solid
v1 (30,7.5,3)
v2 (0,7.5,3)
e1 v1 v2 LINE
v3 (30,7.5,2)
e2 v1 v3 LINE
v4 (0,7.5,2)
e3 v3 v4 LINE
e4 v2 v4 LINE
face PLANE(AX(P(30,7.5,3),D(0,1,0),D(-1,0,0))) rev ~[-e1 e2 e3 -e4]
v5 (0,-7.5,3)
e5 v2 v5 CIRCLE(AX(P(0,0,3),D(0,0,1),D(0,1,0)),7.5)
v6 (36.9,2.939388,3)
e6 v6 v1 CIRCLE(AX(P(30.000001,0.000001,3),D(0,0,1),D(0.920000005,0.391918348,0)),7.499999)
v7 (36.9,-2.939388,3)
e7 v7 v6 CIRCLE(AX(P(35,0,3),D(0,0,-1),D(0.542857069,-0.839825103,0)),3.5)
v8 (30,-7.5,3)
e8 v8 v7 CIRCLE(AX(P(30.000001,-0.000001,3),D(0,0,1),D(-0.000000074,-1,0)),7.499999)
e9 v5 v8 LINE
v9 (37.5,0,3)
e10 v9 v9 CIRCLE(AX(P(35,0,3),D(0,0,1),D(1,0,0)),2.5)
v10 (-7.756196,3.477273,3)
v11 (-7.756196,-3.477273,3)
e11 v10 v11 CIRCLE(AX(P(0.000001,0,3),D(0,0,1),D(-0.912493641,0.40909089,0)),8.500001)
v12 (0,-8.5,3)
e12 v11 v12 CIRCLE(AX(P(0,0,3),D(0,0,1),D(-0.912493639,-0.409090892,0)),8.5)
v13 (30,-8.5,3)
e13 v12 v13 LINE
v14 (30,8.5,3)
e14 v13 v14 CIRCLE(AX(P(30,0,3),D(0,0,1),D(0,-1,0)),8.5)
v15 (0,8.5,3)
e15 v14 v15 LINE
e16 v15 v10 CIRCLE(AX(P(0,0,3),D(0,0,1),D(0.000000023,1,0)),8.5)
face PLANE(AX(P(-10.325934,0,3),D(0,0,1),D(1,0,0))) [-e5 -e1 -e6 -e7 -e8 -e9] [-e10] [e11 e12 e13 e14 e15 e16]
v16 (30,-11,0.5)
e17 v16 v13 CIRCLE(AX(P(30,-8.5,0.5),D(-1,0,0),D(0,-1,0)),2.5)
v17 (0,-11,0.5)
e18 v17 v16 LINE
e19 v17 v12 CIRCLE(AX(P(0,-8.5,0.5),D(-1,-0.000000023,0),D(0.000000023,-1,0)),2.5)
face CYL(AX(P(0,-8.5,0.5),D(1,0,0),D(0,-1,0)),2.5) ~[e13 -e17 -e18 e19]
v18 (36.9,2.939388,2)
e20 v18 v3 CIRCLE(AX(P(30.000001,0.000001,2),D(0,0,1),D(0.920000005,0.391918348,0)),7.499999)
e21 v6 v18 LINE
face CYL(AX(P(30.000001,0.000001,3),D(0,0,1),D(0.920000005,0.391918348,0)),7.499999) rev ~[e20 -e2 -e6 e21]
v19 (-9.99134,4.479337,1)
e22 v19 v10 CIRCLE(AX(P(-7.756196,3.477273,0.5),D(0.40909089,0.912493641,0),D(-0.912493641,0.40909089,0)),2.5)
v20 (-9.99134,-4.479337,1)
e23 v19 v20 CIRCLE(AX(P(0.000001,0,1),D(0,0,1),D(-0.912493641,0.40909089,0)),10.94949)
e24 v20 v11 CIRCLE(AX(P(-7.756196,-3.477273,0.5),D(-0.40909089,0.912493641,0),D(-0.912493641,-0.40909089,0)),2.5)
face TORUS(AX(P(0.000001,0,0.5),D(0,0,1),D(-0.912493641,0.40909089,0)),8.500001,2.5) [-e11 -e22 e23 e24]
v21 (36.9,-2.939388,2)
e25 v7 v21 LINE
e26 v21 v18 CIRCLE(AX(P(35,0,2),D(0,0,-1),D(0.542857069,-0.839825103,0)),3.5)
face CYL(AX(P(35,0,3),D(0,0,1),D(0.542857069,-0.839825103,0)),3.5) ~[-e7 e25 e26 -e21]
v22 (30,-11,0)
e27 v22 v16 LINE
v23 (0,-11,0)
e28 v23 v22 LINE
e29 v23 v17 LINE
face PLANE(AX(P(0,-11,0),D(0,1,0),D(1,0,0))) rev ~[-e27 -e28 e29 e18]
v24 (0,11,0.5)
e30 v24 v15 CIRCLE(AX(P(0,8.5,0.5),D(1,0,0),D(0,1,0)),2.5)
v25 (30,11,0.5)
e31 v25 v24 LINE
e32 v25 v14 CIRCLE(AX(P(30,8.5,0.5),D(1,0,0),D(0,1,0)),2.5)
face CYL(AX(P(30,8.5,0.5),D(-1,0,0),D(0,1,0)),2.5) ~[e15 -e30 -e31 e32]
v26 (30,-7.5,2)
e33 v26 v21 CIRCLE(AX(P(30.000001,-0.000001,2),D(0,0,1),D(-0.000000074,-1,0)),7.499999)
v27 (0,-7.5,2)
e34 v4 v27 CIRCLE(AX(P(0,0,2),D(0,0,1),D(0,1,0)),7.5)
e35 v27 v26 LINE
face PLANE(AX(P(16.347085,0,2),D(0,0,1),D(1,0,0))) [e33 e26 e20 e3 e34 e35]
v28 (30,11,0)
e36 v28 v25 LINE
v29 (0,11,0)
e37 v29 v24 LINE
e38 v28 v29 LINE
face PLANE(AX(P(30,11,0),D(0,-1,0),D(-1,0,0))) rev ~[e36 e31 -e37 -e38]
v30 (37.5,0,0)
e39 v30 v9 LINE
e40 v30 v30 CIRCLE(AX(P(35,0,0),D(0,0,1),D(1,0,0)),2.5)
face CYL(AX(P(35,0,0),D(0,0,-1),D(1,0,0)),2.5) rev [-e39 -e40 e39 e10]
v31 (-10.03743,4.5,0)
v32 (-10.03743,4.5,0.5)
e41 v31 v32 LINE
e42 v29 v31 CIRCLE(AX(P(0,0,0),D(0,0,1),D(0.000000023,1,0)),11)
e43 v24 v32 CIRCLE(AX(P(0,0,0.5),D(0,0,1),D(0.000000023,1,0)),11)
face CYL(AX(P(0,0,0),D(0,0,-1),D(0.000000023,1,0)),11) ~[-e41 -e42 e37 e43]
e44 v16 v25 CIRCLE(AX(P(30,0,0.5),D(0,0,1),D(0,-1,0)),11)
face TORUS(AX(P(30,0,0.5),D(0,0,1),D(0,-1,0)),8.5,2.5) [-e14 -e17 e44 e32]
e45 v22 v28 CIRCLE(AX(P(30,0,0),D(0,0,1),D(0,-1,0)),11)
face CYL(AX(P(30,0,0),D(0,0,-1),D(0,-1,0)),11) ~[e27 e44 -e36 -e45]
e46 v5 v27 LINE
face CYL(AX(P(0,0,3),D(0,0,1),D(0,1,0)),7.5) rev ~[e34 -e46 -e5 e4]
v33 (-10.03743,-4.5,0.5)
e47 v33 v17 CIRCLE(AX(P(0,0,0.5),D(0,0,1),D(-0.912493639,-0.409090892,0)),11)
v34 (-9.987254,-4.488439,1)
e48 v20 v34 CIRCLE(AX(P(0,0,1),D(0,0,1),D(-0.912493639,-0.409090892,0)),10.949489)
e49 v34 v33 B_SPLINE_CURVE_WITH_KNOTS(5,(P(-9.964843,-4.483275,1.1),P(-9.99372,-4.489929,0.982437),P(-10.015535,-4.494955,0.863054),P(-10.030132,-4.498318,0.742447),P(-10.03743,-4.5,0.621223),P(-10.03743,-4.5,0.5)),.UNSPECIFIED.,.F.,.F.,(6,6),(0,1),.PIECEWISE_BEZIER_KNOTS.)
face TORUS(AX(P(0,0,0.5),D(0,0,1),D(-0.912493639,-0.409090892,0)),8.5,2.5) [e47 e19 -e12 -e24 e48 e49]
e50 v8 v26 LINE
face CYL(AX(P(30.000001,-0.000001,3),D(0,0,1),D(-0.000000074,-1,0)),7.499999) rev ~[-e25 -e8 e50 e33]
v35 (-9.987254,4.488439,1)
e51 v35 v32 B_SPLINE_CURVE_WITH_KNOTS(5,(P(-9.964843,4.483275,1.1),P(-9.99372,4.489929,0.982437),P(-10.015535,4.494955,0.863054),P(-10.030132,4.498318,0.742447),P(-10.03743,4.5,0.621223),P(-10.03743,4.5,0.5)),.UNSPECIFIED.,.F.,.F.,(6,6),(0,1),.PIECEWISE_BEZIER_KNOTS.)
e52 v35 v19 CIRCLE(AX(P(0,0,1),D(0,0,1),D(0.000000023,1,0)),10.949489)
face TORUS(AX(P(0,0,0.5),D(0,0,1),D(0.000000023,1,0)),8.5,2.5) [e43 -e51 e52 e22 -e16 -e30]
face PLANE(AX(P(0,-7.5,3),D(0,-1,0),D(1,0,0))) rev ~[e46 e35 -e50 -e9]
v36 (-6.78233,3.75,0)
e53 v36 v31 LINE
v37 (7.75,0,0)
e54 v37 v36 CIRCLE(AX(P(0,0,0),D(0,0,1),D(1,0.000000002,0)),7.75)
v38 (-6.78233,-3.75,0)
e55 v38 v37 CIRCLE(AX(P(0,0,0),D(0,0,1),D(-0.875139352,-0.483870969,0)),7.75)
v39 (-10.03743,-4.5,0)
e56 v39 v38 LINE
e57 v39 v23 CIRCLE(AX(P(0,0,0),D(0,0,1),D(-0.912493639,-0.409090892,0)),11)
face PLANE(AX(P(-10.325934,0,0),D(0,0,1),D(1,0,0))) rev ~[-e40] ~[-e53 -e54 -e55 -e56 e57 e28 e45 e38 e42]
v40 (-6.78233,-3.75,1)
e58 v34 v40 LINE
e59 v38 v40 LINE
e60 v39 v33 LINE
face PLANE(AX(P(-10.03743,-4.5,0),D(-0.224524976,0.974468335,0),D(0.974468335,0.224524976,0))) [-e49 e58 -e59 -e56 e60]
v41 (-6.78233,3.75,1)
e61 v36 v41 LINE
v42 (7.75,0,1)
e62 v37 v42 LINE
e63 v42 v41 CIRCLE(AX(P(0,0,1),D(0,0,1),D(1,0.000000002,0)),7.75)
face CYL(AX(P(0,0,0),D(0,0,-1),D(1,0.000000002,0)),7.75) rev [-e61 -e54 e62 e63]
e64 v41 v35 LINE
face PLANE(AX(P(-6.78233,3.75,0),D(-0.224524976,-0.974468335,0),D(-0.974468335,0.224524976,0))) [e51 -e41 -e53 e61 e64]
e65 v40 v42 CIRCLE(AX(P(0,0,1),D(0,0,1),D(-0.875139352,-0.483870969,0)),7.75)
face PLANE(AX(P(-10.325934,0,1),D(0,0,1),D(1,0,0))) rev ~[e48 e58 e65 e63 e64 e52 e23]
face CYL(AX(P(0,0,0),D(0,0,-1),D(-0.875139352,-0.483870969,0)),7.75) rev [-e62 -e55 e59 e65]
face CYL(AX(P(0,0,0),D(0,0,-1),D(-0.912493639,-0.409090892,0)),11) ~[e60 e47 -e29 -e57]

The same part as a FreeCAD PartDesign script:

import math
import FreeCAD as App
import Part
import Sketcher
Q = App.Units.Quantity


def edges_at(feature, points):
    """Names of the edges that pass closest to the given points."""
    edges = feature.Shape.Edges
    near = lambda p: min(range(len(edges)), key=lambda i: edges[i].distToShape(Part.Vertex(*p))[0])
    return sorted({f"Edge{near(p) + 1}" for p in points})

doc = App.newDocument("Part")
body = doc.addObject("PartDesign::Body", "Body")

# Sketch on XY plane
sketch1 = body.newObject("Sketcher::SketchObject", "Sketch")
sketch1.AttachmentSupport = (doc.getObject("XY_Plane"), [""])
sketch1.MapMode = "FlatFace"
sketch1.addGeometry([
    Part.ArcOfCircle(Part.Circle(App.Vector(0, 0, 0), App.Vector(0, 0, 1), 11), math.radians(156), math.radians(204)),  # 0
    Part.ArcOfCircle(Part.Circle(App.Vector(0, 0, 0), App.Vector(0, 0, 1), 11), math.radians(-156), math.radians(-90)),  # 1
    Part.LineSegment(App.Vector(0, -11, 0), App.Vector(30, -11, 0)),  # 2
    Part.ArcOfCircle(Part.Circle(App.Vector(30, 0, 0), App.Vector(0, 0, 1), 11), math.radians(-90), math.radians(90)),  # 3
    Part.LineSegment(App.Vector(30, 11, 0), App.Vector(0, 11, 0)),  # 4
    Part.ArcOfCircle(Part.Circle(App.Vector(0, 0, 0), App.Vector(0, 0, 1), 11), math.radians(90), math.radians(156)),  # 5
    Part.Circle(App.Vector(35, 0, 0), App.Vector(0, 0, 1), 2.5),  # 6
], False)
sketch1.addConstraint([
    Sketcher.Constraint("Tangent", 0, 2, 1, 1),
    Sketcher.Constraint("Tangent", 1, 2, 2, 1),
    Sketcher.Constraint("Tangent", 2, 2, 3, 1),
    Sketcher.Constraint("Tangent", 3, 2, 4, 1),
    Sketcher.Constraint("Tangent", 4, 2, 5, 1),
    Sketcher.Constraint("Tangent", 5, 2, 0, 1),
    Sketcher.Constraint("Horizontal", 2),
    Sketcher.Constraint("Horizontal", 4),
    Sketcher.Constraint("Coincident", 0, 3, -1, 1),
    Sketcher.Constraint("Equal", 0, 1),
    Sketcher.Constraint("Equal", 1, 3),
    Sketcher.Constraint("PointOnObject", 6, 3, -1),
    Sketcher.Constraint("Vertical", 0, 2, 5, 2),
    Sketcher.Constraint("Diameter", 6, Q("5 mm")),
    Sketcher.Constraint("Radius", 0, Q("11.000001 mm")),
    Sketcher.Constraint("DistanceX", 2, 1, 2, 2, Q("30 mm")),
    Sketcher.Constraint("DistanceX", -1, 1, 6, 3, Q("35 mm")),
    Sketcher.Constraint("DistanceY", 0, 2, 5, 2, Q("9 mm")),
])
pad1 = body.newObject("PartDesign::Pad", "Pad")
pad1.Profile = sketch1
pad1.Length = 3
doc.recompute()

fillet = body.newObject("PartDesign::Fillet", "Fillet")
fillet.Base = (pad1, edges_at(pad1, [(-11, 0, 3)]))
fillet.Radius = 2.5

# Sketch on XY plane
sketch2 = body.newObject("Sketcher::SketchObject", "Sketch001")
sketch2.AttachmentSupport = (doc.getObject("XY_Plane"), [""])
sketch2.MapMode = "FlatFace"
sketch2.addGeometry([
    Part.ArcOfCircle(Part.Circle(App.Vector(0, 0, 0), App.Vector(0, 0, 1), 11), math.radians(156), math.radians(204)),  # 0
    Part.LineSegment(App.Vector(-10, -4.5, 0), App.Vector(-6.8, -3.8, 0)),  # 1
    Part.ArcOfCircle(Part.Circle(App.Vector(0, 0, 0), App.Vector(0, 0, 1), 7.8), math.radians(-151), math.radians(0)),  # 2
    Part.ArcOfCircle(Part.Circle(App.Vector(0, 0, 0), App.Vector(0, 0, 1), 7.8), math.radians(0), math.radians(151)),  # 3
    Part.LineSegment(App.Vector(-6.8, 3.8, 0), App.Vector(-10, 4.5, 0)),  # 4
], False)
sketch2.addConstraint([
    Sketcher.Constraint("Coincident", 0, 2, 1, 1),
    Sketcher.Constraint("Coincident", 1, 2, 2, 1),
    Sketcher.Constraint("Tangent", 2, 2, 3, 1),
    Sketcher.Constraint("Coincident", 3, 2, 4, 1),
    Sketcher.Constraint("Coincident", 4, 2, 0, 1),
    Sketcher.Constraint("Coincident", 0, 3, -1, 1),
    Sketcher.Constraint("Coincident", 2, 3, -1, 1),
    Sketcher.Constraint("Equal", 2, 3),
    Sketcher.Constraint("PointOnObject", 2, 2, -1),
    Sketcher.Constraint("Vertical", 1, 2, 3, 2),
    Sketcher.Constraint("Vertical", 0, 2, 4, 2),
    Sketcher.Constraint("Radius", 0, Q("11.000001 mm")),
    Sketcher.Constraint("Radius", 2, Q("7.75 mm")),
    Sketcher.Constraint("DistanceY", 0, 2, 4, 2, Q("9 mm")),
    Sketcher.Constraint("DistanceY", 1, 2, 3, 2, Q("7.5 mm")),
])
pocket1 = body.newObject("PartDesign::Pocket", "Pocket")
pocket1.Profile = sketch2
pocket1.Length = 1
pocket1.Reversed = True

# Sketch on XY plane
sketch3 = body.newObject("Sketcher::SketchObject", "Sketch002")
sketch3.AttachmentSupport = (doc.getObject("XY_Plane"), [""])
sketch3.MapMode = "FlatFace"
sketch3.AttachmentOffset = App.Placement(App.Vector(0, 0, 3), App.Rotation())
sketch3.addGeometry([
    Part.ArcOfCircle(Part.Circle(App.Vector(35, 0, 0), App.Vector(0, 0, 1), 3.5), math.radians(57), math.radians(303)),  # 0
    Part.ArcOfCircle(Part.Circle(App.Vector(30, 0, 0), App.Vector(0, 0, 1), 7.5), math.radians(23), math.radians(90)),  # 1
    Part.LineSegment(App.Vector(30, 7.5, 0), App.Vector(0, 7.5, 0)),  # 2
    Part.ArcOfCircle(Part.Circle(App.Vector(0, 0, 0), App.Vector(0, 0, 1), 7.5), math.radians(90), math.radians(270)),  # 3
    Part.LineSegment(App.Vector(0, -7.5, 0), App.Vector(30, -7.5, 0)),  # 4
    Part.ArcOfCircle(Part.Circle(App.Vector(30, 0, 0), App.Vector(0, 0, 1), 7.5), math.radians(-90), math.radians(-23)),  # 5
], False)
sketch3.addConstraint([
    Sketcher.Constraint("Coincident", 0, 1, 1, 1),
    Sketcher.Constraint("Tangent", 1, 2, 2, 1),
    Sketcher.Constraint("Tangent", 2, 2, 3, 1),
    Sketcher.Constraint("Tangent", 3, 2, 4, 1),
    Sketcher.Constraint("Tangent", 4, 2, 5, 1),
    Sketcher.Constraint("Coincident", 5, 2, 0, 2),
    Sketcher.Constraint("Horizontal", 2),
    Sketcher.Constraint("Horizontal", 4),
    Sketcher.Constraint("Coincident", 3, 3, -1, 1),
    Sketcher.Constraint("Coincident", 5, 3, 1, 3),
    Sketcher.Constraint("Equal", 1, 3),
    Sketcher.Constraint("PointOnObject", 0, 3, -1),
    Sketcher.Constraint("Radius", 0, Q("3.5 mm")),
    Sketcher.Constraint("Radius", 1, Q("7.499999 mm")),
    Sketcher.Constraint("DistanceX", 2, 2, 2, 1, Q("30 mm")),
    Sketcher.Constraint("DistanceX", -1, 1, 0, 3, Q("35 mm")),
])
pocket2 = body.newObject("PartDesign::Pocket", "Pocket001")
pocket2.Profile = sketch3
pocket2.Length = 1

doc.recompute()
